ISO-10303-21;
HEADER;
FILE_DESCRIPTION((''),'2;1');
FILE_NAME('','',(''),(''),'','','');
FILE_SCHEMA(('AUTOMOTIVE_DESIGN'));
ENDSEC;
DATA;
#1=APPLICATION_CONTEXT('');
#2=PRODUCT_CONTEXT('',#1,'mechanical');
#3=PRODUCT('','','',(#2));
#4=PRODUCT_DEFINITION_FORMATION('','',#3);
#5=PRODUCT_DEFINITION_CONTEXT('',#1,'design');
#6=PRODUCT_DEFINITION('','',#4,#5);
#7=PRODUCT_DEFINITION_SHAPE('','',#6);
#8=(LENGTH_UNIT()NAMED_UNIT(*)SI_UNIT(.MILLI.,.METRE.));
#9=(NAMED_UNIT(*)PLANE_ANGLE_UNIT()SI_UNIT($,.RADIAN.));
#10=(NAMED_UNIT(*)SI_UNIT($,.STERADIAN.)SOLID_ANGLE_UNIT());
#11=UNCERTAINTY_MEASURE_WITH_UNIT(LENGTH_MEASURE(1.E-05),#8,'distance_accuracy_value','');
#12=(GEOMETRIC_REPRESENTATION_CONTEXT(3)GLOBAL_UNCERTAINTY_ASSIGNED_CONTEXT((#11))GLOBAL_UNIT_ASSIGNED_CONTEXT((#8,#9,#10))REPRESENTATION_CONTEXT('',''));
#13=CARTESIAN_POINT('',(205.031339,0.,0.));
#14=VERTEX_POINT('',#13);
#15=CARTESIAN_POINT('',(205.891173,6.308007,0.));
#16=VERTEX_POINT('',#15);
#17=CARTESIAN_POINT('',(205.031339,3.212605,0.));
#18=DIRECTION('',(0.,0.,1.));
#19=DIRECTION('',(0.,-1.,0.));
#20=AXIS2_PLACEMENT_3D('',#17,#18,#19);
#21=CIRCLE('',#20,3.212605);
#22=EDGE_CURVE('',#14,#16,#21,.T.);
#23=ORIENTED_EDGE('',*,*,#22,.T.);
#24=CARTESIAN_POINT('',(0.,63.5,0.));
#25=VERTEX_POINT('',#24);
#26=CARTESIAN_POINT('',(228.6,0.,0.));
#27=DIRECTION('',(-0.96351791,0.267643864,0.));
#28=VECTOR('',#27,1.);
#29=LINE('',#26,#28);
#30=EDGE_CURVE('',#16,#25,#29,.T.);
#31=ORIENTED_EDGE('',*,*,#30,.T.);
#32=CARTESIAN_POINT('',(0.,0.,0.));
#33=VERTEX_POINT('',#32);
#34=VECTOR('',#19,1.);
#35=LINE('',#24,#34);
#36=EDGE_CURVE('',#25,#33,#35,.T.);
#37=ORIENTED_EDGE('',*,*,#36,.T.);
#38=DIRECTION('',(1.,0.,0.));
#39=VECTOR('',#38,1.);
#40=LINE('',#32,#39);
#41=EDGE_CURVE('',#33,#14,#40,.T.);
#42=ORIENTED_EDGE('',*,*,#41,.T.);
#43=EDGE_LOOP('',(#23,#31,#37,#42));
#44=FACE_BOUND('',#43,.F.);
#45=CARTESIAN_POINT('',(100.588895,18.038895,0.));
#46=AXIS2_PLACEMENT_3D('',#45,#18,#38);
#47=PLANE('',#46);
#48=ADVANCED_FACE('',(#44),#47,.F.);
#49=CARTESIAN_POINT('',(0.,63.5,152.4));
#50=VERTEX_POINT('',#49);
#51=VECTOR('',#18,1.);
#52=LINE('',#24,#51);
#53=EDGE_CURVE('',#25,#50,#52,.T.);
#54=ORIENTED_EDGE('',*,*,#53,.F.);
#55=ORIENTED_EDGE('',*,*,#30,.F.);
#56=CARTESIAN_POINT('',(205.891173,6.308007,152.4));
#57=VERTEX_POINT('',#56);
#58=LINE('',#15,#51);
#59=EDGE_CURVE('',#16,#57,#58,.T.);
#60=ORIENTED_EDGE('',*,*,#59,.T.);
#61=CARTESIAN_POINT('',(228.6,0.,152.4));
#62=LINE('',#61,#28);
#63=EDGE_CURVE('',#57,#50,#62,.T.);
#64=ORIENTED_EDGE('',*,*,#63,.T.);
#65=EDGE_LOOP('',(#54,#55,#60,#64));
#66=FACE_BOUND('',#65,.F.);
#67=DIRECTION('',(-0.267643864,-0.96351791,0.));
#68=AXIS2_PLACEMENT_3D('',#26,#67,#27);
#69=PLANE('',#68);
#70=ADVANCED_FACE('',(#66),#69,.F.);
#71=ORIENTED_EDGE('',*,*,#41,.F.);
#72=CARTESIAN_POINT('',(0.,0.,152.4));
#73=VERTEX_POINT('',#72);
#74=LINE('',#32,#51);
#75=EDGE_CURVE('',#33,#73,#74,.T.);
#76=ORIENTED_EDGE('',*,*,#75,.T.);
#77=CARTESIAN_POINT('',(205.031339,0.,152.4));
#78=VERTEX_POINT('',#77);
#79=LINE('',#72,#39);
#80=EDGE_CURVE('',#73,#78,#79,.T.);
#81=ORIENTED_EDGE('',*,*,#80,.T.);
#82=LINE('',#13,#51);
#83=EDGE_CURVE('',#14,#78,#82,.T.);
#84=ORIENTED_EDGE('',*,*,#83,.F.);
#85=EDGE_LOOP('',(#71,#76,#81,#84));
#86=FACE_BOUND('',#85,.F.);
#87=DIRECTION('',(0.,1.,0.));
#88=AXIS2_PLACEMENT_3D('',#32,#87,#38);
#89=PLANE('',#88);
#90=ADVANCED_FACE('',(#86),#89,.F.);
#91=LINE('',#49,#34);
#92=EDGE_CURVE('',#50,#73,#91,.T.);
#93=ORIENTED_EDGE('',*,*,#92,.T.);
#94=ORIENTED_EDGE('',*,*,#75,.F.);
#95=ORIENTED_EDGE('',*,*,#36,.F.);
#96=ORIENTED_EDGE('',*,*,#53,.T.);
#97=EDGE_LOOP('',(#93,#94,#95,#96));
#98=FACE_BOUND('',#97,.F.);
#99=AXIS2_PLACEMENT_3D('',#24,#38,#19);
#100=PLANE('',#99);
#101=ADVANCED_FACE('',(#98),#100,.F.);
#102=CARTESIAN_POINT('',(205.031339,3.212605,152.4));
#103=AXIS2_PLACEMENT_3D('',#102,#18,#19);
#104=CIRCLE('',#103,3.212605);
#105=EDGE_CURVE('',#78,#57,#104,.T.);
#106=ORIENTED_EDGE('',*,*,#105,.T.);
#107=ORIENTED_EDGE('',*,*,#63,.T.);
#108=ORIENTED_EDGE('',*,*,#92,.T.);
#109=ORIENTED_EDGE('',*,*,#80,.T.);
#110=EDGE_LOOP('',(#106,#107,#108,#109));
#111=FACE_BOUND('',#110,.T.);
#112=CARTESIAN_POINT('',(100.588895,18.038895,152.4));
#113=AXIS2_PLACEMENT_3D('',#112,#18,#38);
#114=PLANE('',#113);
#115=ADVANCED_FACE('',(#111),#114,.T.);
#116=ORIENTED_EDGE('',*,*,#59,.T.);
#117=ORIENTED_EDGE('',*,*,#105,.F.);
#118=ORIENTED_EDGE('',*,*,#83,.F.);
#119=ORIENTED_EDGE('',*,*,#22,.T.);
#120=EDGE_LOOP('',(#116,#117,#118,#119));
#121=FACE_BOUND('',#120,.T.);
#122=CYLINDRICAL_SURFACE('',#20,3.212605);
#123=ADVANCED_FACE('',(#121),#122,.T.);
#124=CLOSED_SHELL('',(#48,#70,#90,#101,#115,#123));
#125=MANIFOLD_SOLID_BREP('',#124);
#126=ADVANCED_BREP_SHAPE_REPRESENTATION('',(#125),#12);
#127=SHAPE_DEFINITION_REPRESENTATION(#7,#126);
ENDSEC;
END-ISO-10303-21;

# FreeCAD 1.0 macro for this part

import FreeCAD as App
import Part
import Sketcher
Q = App.Units.Quantity


def edges_at(feature, points):
    """Names of the edges that pass closest to the given points."""
    edges = feature.Shape.Edges
    near = lambda p: min(range(len(edges)), key=lambda i: edges[i].distToShape(Part.Vertex(*p))[0])
    return sorted({f"Edge{near(p) + 1}" for p in points})

doc = App.newDocument("Part")
body = doc.addObject("PartDesign::Body", "Body")

# Sketch on XY plane
sketch1 = doc.addObject("Sketcher::SketchObject", "Sketch")
body.addObject(sketch1)
sketch1.AttachmentSupport = (doc.XY_Plane, [""])
sketch1.MapMode = "FlatFace"
sketch1.addGeometry([
    Part.LineSegment(App.Vector(0, 63.5, 0), App.Vector(0, 0, 0)),
    Part.LineSegment(App.Vector(0, 0, 0), App.Vector(228.6, 0, 0)),
    Part.LineSegment(App.Vector(228.6, 0, 0), App.Vector(0, 63.5, 0)),
], False)
sketch1.addConstraint([
    Sketcher.Constraint("Coincident", 0, 2, 1, 1),
    Sketcher.Constraint("Coincident", 1, 2, 2, 1),
    Sketcher.Constraint("Coincident", 2, 2, 0, 1),
    Sketcher.Constraint("Vertical", 0),
    Sketcher.Constraint("Horizontal", 1),
    Sketcher.Constraint("Coincident", 0, 2, -1, 1),
    Sketcher.Constraint("DistanceX", 1, 1, 1, 2, Q("9 in")),
    Sketcher.Constraint("DistanceY", 0, 2, 0, 1, Q("2.5 in")),
])
pad1 = doc.addObject("PartDesign::Pad", "Pad")
body.addObject(pad1)
pad1.Profile = sketch1
pad1.Length = Q("6 in")
doc.recompute()

fillet = doc.addObject("PartDesign::Fillet", "Fillet")
body.addObject(fillet)
fillet.Base = (pad1, edges_at(pad1, [(228.6, 0, 76.2)]))
fillet.Radius = 3.212605

doc.recompute()
